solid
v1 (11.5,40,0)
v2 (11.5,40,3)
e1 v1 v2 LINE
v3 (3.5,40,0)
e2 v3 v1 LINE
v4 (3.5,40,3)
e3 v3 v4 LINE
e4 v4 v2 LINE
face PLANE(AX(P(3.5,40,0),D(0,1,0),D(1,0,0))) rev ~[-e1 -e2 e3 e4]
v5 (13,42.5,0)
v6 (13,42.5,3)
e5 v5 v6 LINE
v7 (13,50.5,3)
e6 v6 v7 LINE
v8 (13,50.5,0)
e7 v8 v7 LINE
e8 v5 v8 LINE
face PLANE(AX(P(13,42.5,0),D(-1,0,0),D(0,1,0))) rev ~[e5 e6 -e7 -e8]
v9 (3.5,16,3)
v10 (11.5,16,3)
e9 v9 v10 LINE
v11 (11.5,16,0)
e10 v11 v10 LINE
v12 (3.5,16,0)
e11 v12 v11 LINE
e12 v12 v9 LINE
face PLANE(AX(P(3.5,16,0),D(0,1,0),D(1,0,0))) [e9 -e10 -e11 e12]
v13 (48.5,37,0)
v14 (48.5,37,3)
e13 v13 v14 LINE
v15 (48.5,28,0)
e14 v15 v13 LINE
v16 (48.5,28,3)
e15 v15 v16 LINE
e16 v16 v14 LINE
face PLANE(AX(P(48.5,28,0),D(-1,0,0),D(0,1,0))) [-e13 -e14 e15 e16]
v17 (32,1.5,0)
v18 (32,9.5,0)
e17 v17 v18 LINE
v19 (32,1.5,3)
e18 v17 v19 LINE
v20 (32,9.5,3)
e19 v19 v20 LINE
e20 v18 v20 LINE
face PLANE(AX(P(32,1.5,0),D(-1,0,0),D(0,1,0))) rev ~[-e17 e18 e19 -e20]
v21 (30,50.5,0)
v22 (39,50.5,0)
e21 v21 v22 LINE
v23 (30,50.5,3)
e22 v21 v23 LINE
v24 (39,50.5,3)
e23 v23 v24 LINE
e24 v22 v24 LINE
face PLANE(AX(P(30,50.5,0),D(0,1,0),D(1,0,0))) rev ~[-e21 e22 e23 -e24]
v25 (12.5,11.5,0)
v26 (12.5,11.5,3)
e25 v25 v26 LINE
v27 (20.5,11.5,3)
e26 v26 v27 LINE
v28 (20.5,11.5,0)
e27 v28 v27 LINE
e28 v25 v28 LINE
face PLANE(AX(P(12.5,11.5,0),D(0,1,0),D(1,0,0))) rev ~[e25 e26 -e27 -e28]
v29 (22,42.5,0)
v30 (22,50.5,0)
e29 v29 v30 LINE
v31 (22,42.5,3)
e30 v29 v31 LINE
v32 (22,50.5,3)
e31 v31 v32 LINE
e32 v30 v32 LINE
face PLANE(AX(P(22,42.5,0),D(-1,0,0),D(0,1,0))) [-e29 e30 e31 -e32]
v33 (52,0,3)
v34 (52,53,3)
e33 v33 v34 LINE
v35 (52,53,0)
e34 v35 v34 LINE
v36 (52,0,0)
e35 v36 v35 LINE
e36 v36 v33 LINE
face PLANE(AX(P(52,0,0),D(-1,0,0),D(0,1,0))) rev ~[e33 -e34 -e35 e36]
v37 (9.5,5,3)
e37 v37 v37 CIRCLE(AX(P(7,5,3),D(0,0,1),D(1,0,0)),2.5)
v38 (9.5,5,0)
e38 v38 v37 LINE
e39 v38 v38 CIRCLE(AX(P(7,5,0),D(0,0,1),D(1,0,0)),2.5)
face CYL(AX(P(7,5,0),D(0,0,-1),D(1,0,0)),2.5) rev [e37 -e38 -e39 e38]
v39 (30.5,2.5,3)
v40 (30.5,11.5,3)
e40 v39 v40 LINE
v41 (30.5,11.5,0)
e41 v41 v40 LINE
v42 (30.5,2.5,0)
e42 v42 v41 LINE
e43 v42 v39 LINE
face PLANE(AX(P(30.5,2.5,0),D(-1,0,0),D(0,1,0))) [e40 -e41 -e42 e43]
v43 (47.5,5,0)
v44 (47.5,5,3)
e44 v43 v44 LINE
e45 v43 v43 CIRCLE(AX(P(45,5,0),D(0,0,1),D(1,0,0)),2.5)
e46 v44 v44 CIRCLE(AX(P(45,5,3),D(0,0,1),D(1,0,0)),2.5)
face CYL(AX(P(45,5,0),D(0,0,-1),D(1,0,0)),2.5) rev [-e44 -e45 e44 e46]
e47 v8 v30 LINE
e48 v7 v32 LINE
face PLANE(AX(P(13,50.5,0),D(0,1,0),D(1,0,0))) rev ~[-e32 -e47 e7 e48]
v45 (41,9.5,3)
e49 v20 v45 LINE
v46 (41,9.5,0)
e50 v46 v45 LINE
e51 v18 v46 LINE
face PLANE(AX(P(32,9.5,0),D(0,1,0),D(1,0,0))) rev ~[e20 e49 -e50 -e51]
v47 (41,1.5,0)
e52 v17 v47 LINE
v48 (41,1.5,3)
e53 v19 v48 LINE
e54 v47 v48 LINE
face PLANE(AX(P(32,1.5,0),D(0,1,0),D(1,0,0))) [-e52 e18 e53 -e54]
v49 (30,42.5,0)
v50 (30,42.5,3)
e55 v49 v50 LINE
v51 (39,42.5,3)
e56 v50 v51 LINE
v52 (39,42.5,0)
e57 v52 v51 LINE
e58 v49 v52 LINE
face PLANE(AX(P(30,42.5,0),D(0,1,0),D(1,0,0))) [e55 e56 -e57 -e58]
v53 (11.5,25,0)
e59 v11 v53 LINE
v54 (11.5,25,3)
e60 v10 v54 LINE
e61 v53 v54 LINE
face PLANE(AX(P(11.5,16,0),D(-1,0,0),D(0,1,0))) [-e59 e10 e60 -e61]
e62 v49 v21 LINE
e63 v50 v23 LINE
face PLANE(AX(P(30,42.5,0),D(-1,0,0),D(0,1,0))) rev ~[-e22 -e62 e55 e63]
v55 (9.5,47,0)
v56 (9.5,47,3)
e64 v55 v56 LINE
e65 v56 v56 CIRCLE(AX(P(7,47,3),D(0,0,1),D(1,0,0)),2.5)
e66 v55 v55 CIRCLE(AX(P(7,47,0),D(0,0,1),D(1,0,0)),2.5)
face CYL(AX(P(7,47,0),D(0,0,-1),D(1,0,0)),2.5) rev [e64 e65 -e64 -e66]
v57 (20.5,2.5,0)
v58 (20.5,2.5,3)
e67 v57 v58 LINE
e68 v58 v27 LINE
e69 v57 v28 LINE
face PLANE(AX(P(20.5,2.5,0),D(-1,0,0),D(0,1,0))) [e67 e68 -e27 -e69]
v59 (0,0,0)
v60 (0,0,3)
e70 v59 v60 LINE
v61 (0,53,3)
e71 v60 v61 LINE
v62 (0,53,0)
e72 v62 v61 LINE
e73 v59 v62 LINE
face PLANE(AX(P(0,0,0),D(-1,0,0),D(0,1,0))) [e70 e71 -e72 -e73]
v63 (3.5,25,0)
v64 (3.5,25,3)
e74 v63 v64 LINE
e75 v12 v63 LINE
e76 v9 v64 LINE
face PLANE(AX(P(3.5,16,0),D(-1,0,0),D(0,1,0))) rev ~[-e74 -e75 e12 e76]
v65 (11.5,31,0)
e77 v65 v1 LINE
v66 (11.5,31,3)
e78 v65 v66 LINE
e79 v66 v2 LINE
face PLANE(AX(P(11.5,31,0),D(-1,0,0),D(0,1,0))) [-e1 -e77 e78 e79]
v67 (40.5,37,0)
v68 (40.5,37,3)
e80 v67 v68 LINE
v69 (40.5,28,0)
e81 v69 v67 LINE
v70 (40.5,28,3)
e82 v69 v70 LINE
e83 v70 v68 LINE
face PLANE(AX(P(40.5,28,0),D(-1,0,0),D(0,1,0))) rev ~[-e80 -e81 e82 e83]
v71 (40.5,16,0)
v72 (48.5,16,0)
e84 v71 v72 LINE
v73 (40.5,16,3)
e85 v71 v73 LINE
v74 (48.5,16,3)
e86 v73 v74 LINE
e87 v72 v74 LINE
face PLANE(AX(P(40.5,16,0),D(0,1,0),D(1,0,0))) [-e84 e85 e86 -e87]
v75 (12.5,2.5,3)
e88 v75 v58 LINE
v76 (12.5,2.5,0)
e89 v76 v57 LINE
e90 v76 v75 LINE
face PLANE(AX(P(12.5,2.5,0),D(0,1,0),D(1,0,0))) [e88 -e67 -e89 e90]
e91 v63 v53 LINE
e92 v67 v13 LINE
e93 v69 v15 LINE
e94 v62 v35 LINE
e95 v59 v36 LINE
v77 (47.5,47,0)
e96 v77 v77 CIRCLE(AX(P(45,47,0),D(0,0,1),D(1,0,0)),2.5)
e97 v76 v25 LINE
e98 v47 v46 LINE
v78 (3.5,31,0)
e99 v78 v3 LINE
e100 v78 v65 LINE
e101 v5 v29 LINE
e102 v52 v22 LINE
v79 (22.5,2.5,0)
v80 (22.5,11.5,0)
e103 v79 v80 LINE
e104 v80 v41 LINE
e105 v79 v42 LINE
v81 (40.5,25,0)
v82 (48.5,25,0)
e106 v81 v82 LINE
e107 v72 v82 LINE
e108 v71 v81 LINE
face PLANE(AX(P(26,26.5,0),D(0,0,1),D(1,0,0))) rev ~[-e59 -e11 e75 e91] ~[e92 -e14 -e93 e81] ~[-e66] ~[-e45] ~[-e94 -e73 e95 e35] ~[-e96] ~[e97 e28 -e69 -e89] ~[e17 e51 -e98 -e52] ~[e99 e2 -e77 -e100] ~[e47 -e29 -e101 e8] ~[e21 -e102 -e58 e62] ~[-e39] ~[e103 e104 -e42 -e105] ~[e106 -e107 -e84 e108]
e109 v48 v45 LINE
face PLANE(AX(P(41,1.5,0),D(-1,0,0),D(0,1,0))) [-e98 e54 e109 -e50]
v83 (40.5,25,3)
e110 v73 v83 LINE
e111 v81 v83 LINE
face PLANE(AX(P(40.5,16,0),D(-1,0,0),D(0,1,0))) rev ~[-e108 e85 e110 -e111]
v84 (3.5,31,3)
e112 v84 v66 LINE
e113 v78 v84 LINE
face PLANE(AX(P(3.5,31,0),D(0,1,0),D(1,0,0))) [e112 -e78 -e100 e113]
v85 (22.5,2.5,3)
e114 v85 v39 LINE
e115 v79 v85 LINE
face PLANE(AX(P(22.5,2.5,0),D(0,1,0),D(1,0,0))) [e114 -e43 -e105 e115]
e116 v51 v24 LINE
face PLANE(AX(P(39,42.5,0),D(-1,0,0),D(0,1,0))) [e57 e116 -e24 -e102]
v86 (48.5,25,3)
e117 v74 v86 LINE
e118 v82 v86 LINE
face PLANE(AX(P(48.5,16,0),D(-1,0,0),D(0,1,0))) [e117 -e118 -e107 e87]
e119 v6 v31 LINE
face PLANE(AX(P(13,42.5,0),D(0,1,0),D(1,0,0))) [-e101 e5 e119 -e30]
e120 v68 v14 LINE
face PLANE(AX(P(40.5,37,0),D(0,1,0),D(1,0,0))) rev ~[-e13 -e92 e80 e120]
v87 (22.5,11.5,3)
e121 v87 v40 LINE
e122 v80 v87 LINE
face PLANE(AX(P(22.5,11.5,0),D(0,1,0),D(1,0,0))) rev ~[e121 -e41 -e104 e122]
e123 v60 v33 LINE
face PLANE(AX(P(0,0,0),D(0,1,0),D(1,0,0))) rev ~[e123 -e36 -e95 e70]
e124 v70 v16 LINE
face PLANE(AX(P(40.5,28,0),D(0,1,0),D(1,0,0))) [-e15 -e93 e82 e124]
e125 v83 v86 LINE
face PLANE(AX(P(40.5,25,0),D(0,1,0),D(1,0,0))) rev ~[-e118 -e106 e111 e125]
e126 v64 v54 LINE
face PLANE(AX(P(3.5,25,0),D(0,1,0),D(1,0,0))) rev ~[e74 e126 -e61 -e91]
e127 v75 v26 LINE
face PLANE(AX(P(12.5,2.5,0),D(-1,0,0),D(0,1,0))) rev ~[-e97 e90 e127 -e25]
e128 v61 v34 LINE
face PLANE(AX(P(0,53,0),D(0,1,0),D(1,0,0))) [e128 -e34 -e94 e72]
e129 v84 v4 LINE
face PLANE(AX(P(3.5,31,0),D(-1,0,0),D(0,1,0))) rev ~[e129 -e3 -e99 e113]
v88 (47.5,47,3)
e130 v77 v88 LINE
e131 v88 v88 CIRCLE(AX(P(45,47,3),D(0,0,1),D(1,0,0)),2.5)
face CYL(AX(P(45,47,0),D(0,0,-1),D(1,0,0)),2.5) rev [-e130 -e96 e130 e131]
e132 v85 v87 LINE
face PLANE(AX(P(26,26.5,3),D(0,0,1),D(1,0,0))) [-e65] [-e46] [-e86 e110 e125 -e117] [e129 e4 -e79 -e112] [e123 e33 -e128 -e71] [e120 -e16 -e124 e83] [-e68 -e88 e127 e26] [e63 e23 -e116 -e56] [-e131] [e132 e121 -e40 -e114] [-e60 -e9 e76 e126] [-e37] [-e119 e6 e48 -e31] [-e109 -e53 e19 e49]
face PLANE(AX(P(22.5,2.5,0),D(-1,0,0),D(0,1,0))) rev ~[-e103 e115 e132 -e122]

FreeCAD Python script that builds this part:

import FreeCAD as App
import Part
import Sketcher

V = App.Vector


def add_polygon(sketch, points):
    """Adds a closed chain of lines whose ends are joined by coincident constraints."""
    first, n = sketch.GeometryCount, len(points)
    for a, b in zip(points, points[1:] + points[:1]):
        sketch.addGeometry(Part.LineSegment(App.Vector(*a, 0), App.Vector(*b, 0)), False)
    for i in range(n):
        sketch.addConstraint(Sketcher.Constraint("Coincident", first + i, 2, first + (i + 1) % n, 1))

doc = App.newDocument("Part")
params = doc.addObject("Spreadsheet::Sheet", "Params")
for row, (alias, value) in enumerate([
    ("sketch1_diameter", "5 mm"),
    ("sketch1_width", "52 mm"),
    ("sketch1_width2", "8 mm"),
    ("sketch1_width3", "9 mm"),
    ("sketch1_height", "53 mm"),
    ("pad1_length", "3 mm"),
], start=1):
    params.set(f"A{row}", alias)
    params.set(f"B{row}", "=" + value)
    params.setAlias(f"B{row}", alias)

body = doc.addObject("PartDesign::Body", "Body")

# Sketch on XY plane
sketch1 = body.newObject("Sketcher::SketchObject", "Sketch")
sketch1.AttachmentSupport = (doc.getObject("XY_Plane"), [""])
sketch1.MapMode = "FlatFace"
add_polygon(sketch1, [(0, 53), (0, 0), (52, 0), (52, 53)])  # lines 0-3
sketch1.addGeometry(Part.Circle(V(7, 5, 0), V(0, 0, 1), 2.5), False)  # 4
add_polygon(sketch1, [(20.5, 2.5), (12.5, 2.5), (12.5, 11.5), (20.5, 11.5)])  # lines 5-8
add_polygon(sketch1, [(11.5, 16), (3.5, 16), (3.5, 25), (11.5, 25)])  # lines 9-12
add_polygon(sketch1, [(30.5, 2.5), (22.5, 2.5), (22.5, 11.5), (30.5, 11.5)])  # lines 13-16
add_polygon(sketch1, [(41, 1.5), (32, 1.5), (32, 9.5), (41, 9.5)])  # lines 17-20
sketch1.addGeometry(Part.Circle(V(45, 5, 0), V(0, 0, 1), 2.5), False)  # 21
add_polygon(sketch1, [(48.5, 16), (40.5, 16), (40.5, 25), (48.5, 25)])  # lines 22-25
add_polygon(sketch1, [(11.5, 31), (3.5, 31), (3.5, 40), (11.5, 40)])  # lines 26-29
sketch1.addGeometry(Part.Circle(V(7, 47, 0), V(0, 0, 1), 2.5), False)  # 30
add_polygon(sketch1, [(22, 42.5), (13, 42.5), (13, 50.5), (22, 50.5)])  # lines 31-34
add_polygon(sketch1, [(48.5, 28), (40.5, 28), (40.5, 37), (48.5, 37)])  # lines 35-38
add_polygon(sketch1, [(39, 42.5), (30, 42.5), (30, 50.5), (39, 50.5)])  # lines 39-42
sketch1.addGeometry(Part.Circle(V(45, 47, 0), V(0, 0, 1), 2.5), False)  # 43
sketch1.addConstraint([
    Sketcher.Constraint("Vertical", 0),
    Sketcher.Constraint("Horizontal", 1),
    Sketcher.Constraint("Vertical", 2),
    Sketcher.Constraint("Horizontal", 3),
    Sketcher.Constraint("Horizontal", 5),
    Sketcher.Constraint("Vertical", 6),
    Sketcher.Constraint("Horizontal", 7),
    Sketcher.Constraint("Vertical", 8),
    Sketcher.Constraint("Horizontal", 9),
    Sketcher.Constraint("Vertical", 10),
    Sketcher.Constraint("Horizontal", 11),
    Sketcher.Constraint("Vertical", 12),
    Sketcher.Constraint("Horizontal", 13),
    Sketcher.Constraint("Vertical", 14),
    Sketcher.Constraint("Horizontal", 15),
    Sketcher.Constraint("Vertical", 16),
    Sketcher.Constraint("Horizontal", 17),
    Sketcher.Constraint("Vertical", 18),
    Sketcher.Constraint("Horizontal", 19),
    Sketcher.Constraint("Vertical", 20),
    Sketcher.Constraint("Horizontal", 22),
    Sketcher.Constraint("Vertical", 23),
    Sketcher.Constraint("Horizontal", 24),
    Sketcher.Constraint("Vertical", 25),
    Sketcher.Constraint("Horizontal", 26),
    Sketcher.Constraint("Vertical", 27),
    Sketcher.Constraint("Horizontal", 28),
    Sketcher.Constraint("Vertical", 29),
    Sketcher.Constraint("Horizontal", 31),
    Sketcher.Constraint("Vertical", 32),
    Sketcher.Constraint("Horizontal", 33),
    Sketcher.Constraint("Vertical", 34),
    Sketcher.Constraint("Horizontal", 35),
    Sketcher.Constraint("Vertical", 36),
    Sketcher.Constraint("Horizontal", 37),
    Sketcher.Constraint("Vertical", 38),
    Sketcher.Constraint("Horizontal", 39),
    Sketcher.Constraint("Vertical", 40),
    Sketcher.Constraint("Horizontal", 41),
    Sketcher.Constraint("Vertical", 42),
    Sketcher.Constraint("Coincident", 0, 2, -1, 1),
    Sketcher.Constraint("Equal", 4, 21),
    Sketcher.Constraint("Equal", 21, 30),
    Sketcher.Constraint("Equal", 30, 43),
    Sketcher.Constraint("Horizontal", 4, 3, 21, 3),
    Sketcher.Constraint("Horizontal", 30, 3, 43, 3),
    Sketcher.Constraint("Horizontal", 8, 2, 13, 2),
    Sketcher.Constraint("Horizontal", 7, 2, 14, 2),
    Sketcher.Constraint("Horizontal", 12, 2, 22, 2),
    Sketcher.Constraint("Horizontal", 11, 2, 23, 2),
    Sketcher.Constraint("Horizontal", 34, 2, 39, 2),
    Sketcher.Constraint("Horizontal", 33, 2, 40, 2),
    Sketcher.Constraint("Vertical", 4, 3, 30, 3),
    Sketcher.Constraint("Vertical", 21, 3, 43, 3),
    Sketcher.Constraint("Vertical", 10, 2, 26, 2),
    Sketcher.Constraint("Vertical", 12, 2, 28, 2),
    Sketcher.Constraint("Vertical", 23, 2, 35, 2),
    Sketcher.Constraint("Vertical", 25, 2, 37, 2),
    Sketcher.Constraint("Equal", 7, 9),
    Sketcher.Constraint("Equal", 11, 13),
    Sketcher.Constraint("Equal", 15, 22),
    Sketcher.Constraint("Equal", 19, 31),
    Sketcher.Constraint("Equal", 33, 39),
    Sketcher.Constraint("Equal", 41, 6),
    Sketcher.Constraint("Equal", 8, 10),
    Sketcher.Constraint("Equal", 37, 18),
    Sketcher.Constraint("Equal", 25, 27),
    Sketcher.Constraint("Equal", 20, 32),
    Sketcher.Constraint("Equal", 29, 36),
    Sketcher.Constraint("Diameter", 4, 5.0),
    Sketcher.Constraint("DistanceX", 1, 1, 1, 2, 52.0),
    Sketcher.Constraint("DistanceX", 5, 2, 5, 1, 8.0),
    Sketcher.Constraint("DistanceX", 17, 2, 17, 1, 9.0),
    Sketcher.Constraint("DistanceY", 0, 2, 0, 1, 53.0),
    Sketcher.Constraint("DistanceX", -1, 1, 4, 3, 7.0),
    Sketcher.Constraint("DistanceY", -1, 1, 4, 3, 5.0),
    Sketcher.Constraint("DistanceX", -1, 1, 21, 3, 45.0),
    Sketcher.Constraint("DistanceY", -1, 1, 30, 3, 47.0),
    Sketcher.Constraint("DistanceY", -1, 1, 9, 2, 16.0),
    Sketcher.Constraint("DistanceX", -1, 1, 17, 2, 32.0),
    Sketcher.Constraint("DistanceY", -1, 1, 26, 2, 31.0),
    Sketcher.Constraint("DistanceX", -1, 1, 31, 2, 13.0),
    Sketcher.Constraint("DistanceY", -1, 1, 35, 2, 28.0),
    Sketcher.Constraint("DistanceX", -1, 1, 39, 2, 30.0),
    Sketcher.Constraint("DistanceX", 9, 2, 6, 2, 9.0),
    Sketcher.Constraint("DistanceX", 8, 2, 13, 2, 2.0),
    Sketcher.Constraint("DistanceY", 17, 2, 16, 2, 1.0),
    Sketcher.Constraint("DistanceX", 15, 2, 22, 2, 10.0),
    Sketcher.Constraint("DistanceX", -1, 1, 5, 2, 12.5),
    Sketcher.Constraint("DistanceY", -1, 1, 5, 2, 2.5),
    Sketcher.Constraint("DistanceY", -1, 1, 31, 2, 42.5),
])
sketch1.setExpression("Constraints[109]", "Params.sketch1_diameter")
sketch1.setExpression("Constraints[110]", "Params.sketch1_width")
sketch1.setExpression("Constraints[111]", "Params.sketch1_width2")
sketch1.setExpression("Constraints[112]", "Params.sketch1_width3")
sketch1.setExpression("Constraints[113]", "Params.sketch1_height")
pad1 = body.newObject("PartDesign::Pad", "Pad")
pad1.Profile = sketch1
pad1.setExpression("Length", "Params.pad1_length")

doc.recompute()
